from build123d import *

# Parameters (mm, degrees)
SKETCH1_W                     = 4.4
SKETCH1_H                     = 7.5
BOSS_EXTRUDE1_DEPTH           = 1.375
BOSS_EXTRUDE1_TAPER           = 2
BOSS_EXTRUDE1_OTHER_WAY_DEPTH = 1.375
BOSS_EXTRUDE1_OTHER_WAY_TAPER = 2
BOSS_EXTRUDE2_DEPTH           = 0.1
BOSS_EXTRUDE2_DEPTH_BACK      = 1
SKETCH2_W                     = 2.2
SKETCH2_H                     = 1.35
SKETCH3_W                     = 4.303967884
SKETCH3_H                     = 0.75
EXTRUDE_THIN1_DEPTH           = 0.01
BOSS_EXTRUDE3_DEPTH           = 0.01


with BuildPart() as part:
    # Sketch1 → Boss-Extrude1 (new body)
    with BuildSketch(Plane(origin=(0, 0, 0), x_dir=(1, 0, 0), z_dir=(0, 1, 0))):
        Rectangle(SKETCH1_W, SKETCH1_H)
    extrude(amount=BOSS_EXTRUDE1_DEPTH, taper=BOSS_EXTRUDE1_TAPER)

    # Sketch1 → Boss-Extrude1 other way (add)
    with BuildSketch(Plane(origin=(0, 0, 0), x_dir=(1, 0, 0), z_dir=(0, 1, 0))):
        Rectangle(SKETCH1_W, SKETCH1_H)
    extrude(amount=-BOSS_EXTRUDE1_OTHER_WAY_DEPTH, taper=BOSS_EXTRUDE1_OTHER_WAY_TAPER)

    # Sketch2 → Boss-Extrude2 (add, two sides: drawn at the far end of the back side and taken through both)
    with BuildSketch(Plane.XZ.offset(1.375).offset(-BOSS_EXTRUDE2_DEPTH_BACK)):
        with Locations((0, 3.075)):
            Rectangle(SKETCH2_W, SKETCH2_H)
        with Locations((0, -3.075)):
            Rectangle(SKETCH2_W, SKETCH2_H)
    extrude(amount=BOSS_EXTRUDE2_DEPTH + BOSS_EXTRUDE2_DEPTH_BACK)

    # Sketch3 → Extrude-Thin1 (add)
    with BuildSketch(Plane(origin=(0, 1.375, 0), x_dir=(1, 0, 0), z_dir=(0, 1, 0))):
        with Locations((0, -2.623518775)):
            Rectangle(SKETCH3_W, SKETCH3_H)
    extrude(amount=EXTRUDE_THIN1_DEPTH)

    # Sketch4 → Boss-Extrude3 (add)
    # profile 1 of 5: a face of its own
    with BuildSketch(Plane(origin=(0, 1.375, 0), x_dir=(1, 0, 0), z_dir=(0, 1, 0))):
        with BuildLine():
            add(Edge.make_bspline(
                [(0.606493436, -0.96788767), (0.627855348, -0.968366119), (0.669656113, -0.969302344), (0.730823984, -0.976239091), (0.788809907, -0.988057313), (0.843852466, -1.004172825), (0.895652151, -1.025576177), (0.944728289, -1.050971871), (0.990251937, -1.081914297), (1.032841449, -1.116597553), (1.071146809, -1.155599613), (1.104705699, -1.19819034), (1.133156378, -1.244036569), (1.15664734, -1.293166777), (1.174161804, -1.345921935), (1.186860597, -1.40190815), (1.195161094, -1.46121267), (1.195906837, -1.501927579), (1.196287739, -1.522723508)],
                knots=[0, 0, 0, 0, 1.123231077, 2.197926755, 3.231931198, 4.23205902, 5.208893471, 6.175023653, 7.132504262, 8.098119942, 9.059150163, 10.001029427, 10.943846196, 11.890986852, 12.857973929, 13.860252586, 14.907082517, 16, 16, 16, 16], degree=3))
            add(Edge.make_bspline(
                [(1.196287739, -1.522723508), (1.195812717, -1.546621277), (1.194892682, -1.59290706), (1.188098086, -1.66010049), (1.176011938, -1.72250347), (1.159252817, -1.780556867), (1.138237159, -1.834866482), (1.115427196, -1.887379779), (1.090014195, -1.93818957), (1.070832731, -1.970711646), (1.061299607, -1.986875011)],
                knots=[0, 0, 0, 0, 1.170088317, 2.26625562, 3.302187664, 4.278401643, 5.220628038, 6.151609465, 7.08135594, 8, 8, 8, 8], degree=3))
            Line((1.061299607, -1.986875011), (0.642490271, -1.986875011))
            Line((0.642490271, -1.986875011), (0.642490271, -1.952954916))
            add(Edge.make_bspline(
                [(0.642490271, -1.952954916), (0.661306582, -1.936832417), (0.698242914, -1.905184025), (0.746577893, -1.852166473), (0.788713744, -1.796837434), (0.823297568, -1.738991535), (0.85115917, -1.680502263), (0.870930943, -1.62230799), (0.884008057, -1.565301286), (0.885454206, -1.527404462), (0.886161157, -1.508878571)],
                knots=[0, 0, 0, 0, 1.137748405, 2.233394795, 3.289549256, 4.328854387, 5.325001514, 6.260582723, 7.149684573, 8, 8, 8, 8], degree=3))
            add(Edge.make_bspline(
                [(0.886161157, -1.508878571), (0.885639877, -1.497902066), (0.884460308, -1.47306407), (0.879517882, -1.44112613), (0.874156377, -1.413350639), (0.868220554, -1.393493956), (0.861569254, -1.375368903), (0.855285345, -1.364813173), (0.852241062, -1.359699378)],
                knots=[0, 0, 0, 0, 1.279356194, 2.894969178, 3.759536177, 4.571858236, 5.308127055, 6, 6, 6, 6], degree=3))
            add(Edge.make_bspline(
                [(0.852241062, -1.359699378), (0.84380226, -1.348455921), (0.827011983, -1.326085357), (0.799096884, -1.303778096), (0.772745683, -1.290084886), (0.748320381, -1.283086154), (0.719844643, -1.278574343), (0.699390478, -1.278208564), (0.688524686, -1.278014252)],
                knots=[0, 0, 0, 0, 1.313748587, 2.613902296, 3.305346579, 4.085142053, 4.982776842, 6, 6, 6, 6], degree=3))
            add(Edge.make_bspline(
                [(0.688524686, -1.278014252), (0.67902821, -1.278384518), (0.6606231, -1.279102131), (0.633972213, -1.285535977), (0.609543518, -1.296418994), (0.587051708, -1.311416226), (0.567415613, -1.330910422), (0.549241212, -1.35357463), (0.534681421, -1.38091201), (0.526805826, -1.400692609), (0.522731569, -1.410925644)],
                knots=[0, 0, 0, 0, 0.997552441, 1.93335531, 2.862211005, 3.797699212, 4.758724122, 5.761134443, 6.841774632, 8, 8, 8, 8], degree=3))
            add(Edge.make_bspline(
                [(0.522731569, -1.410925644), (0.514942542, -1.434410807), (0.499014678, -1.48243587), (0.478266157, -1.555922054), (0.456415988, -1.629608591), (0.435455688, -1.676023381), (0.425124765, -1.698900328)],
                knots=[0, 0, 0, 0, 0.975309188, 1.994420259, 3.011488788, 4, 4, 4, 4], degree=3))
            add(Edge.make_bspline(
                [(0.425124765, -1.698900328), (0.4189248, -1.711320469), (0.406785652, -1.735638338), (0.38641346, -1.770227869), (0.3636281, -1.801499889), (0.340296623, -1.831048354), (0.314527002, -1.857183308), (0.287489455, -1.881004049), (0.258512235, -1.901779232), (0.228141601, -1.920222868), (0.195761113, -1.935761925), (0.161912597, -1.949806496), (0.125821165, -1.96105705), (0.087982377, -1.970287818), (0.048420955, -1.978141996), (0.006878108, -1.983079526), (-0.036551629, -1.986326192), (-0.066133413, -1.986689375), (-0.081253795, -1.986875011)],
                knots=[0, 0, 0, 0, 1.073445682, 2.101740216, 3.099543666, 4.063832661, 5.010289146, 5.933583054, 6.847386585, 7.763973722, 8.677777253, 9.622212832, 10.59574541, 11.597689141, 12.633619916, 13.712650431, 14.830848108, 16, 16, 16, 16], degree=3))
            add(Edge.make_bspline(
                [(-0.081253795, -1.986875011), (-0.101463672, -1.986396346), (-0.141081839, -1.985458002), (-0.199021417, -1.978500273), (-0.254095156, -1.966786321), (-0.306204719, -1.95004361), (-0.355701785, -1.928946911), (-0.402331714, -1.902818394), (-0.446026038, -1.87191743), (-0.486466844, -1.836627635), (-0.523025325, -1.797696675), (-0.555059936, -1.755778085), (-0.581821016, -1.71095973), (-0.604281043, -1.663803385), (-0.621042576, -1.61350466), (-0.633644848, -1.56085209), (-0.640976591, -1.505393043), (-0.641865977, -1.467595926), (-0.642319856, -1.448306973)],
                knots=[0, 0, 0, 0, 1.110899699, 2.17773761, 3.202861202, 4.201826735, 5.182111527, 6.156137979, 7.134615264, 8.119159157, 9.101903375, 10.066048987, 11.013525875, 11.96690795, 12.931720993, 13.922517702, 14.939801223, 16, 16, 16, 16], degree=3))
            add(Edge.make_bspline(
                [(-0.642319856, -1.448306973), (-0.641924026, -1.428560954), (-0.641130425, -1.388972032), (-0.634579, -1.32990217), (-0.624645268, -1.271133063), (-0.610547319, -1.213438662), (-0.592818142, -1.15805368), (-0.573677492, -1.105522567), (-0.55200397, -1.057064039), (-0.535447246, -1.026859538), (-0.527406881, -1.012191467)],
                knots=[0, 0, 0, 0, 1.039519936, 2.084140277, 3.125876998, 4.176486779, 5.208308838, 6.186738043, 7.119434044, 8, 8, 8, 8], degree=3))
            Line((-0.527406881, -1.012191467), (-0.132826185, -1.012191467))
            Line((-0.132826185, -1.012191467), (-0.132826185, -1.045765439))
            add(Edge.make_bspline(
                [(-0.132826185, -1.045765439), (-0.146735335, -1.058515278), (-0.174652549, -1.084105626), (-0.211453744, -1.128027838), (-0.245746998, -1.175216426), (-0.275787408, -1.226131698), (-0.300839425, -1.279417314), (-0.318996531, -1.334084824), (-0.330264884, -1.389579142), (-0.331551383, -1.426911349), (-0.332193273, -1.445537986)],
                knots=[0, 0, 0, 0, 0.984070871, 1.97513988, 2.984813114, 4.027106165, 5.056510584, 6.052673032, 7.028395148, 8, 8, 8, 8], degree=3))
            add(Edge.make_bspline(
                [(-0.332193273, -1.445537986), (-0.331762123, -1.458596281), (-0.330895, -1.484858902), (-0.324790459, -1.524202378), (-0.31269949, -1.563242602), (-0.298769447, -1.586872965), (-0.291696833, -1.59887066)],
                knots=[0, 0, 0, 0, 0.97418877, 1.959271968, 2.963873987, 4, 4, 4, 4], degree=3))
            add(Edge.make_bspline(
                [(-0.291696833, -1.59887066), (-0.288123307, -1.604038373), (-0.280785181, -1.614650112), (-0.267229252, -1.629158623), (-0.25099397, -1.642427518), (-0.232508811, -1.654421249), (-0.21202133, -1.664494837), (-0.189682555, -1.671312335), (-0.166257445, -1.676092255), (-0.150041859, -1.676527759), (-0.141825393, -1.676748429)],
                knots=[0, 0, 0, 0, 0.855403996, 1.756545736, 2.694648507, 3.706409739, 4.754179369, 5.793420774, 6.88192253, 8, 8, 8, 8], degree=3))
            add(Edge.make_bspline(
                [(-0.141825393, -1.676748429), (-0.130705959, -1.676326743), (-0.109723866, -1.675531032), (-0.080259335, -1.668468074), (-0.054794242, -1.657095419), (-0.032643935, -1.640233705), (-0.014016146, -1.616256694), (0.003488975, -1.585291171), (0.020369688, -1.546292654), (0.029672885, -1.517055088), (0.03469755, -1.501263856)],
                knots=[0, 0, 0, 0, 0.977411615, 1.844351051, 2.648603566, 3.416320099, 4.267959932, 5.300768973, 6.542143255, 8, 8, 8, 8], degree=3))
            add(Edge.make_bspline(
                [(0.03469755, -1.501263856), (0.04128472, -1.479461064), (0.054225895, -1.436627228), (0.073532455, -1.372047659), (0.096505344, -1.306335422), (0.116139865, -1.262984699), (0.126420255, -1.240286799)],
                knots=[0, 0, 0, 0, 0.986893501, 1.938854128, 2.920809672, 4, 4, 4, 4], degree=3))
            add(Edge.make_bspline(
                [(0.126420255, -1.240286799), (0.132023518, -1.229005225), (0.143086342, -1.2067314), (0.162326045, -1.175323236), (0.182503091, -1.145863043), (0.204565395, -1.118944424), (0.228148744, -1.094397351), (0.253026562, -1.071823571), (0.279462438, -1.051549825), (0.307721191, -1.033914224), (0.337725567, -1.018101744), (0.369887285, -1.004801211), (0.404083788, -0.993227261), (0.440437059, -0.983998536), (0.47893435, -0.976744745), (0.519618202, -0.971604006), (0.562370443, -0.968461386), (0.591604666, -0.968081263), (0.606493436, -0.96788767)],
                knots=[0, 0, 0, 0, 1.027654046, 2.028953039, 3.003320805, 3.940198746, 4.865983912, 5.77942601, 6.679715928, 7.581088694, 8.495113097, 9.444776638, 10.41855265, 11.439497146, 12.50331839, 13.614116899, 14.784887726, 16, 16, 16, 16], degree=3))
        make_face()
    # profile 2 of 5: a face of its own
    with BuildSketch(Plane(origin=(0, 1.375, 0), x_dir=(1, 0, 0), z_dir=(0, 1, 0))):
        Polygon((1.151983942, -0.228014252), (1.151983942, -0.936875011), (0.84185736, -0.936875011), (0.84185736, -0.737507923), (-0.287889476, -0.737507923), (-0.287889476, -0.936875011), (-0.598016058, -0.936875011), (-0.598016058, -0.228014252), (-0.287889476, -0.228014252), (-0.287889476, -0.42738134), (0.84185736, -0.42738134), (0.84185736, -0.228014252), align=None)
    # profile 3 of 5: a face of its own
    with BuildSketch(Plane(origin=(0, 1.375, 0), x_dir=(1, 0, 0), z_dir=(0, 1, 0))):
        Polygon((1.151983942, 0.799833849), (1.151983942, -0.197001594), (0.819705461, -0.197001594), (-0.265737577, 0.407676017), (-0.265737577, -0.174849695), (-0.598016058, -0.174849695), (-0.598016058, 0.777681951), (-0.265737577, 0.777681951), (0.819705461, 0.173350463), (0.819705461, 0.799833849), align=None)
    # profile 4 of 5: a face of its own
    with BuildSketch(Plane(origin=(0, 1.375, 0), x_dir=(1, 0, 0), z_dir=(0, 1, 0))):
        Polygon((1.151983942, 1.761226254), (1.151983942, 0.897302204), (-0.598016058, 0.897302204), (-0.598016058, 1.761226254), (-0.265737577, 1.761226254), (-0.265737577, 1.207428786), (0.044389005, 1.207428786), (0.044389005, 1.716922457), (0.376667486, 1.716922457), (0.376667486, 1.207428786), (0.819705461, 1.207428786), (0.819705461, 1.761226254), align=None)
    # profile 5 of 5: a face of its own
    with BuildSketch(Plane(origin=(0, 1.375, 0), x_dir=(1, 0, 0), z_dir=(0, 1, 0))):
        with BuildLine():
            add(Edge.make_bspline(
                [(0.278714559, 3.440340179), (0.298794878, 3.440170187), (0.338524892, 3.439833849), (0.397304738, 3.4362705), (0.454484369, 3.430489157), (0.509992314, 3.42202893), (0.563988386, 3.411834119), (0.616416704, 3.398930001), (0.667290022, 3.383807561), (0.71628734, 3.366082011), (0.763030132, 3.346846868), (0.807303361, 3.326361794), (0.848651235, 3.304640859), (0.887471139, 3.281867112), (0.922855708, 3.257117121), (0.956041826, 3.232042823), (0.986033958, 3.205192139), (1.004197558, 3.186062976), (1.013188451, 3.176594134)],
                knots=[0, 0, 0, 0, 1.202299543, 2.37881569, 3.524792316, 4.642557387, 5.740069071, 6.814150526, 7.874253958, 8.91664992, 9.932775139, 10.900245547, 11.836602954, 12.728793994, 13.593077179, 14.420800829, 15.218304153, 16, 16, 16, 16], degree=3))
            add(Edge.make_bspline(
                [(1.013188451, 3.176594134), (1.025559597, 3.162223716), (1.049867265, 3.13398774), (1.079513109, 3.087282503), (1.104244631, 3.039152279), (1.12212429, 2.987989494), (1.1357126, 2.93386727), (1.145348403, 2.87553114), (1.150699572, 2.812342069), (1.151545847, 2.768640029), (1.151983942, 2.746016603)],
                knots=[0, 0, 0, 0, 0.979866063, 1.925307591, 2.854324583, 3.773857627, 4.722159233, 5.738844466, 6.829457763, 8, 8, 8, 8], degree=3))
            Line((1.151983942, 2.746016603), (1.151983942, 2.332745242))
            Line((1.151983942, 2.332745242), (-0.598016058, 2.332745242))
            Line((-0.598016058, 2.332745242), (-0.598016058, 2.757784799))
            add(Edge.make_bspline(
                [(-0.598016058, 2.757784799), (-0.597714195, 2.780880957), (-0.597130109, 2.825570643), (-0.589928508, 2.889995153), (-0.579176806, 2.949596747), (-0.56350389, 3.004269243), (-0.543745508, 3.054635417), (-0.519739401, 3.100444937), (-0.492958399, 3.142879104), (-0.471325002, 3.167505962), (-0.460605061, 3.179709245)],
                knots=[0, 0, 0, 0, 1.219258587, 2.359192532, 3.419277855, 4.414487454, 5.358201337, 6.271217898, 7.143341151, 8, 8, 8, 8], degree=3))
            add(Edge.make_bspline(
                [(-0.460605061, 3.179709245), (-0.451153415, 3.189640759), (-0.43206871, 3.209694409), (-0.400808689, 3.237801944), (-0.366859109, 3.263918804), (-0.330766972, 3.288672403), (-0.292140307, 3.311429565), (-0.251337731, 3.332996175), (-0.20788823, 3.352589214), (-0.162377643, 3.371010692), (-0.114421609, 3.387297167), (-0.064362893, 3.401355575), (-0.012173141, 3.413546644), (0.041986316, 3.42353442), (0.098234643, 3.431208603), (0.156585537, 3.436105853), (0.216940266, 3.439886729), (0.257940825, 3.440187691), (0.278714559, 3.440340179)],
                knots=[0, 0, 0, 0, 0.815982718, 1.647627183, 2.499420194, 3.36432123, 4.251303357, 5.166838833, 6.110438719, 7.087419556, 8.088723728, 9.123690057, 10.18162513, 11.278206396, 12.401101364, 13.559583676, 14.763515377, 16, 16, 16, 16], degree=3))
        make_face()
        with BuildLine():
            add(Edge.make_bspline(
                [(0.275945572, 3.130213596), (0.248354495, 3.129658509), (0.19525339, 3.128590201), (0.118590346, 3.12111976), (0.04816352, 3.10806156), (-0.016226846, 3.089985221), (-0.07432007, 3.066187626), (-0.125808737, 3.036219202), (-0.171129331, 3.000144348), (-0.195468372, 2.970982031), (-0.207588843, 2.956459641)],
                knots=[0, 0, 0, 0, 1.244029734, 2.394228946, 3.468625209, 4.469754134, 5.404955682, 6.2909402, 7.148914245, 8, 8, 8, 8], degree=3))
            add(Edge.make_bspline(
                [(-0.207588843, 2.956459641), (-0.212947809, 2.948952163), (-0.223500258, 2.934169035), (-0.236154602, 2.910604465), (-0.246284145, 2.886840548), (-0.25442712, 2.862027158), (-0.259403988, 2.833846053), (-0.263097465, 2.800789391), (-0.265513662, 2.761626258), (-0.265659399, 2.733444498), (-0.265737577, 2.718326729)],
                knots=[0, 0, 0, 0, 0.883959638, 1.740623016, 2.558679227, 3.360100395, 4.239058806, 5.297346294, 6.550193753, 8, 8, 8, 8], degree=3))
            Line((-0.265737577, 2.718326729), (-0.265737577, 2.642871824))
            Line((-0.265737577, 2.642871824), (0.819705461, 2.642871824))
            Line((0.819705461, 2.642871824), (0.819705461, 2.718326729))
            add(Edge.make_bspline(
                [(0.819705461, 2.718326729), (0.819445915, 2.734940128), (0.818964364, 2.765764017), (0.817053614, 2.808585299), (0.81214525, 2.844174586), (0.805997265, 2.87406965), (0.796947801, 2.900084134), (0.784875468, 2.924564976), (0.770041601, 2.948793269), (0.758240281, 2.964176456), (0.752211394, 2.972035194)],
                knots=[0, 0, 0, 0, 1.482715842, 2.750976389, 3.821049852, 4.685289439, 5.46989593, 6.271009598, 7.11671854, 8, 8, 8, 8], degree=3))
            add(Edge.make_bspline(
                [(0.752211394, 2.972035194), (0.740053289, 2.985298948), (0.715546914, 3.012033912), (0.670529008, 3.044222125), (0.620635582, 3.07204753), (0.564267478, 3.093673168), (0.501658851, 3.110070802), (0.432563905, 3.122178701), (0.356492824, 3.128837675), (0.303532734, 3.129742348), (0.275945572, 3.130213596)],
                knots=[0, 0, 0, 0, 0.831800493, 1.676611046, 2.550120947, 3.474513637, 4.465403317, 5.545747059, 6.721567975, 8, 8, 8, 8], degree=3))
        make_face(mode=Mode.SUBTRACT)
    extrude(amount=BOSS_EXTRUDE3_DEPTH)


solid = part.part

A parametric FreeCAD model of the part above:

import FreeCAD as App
import Part
import Sketcher

V = App.Vector

doc = App.newDocument("Part")
body = doc.addObject("PartDesign::Body", "Body")

sketch1 = body.newObject("Sketcher::SketchObject", "Sketch")
sketch1.AttachmentSupport = (doc.getObject("XZ_Plane"), [""])
sketch1.MapMode = "FlatFace"
sketch1.addGeometry(Part.LineSegment(V(-2.2, -3.8, 0), V(-2.2, 3.8, 0)), False)
sketch1.addGeometry(Part.LineSegment(V(-2.2, 3.8, 0), V(2.2, 3.8, 0)), False)
sketch1.addGeometry(Part.LineSegment(V(2.2, 3.8, 0), V(2.2, -3.8, 0)), False)
sketch1.addGeometry(Part.LineSegment(V(2.2, -3.8, 0), V(-2.2, -3.8, 0)), False)
sketch1.addConstraint(Sketcher.Constraint("Coincident", 0, 2, 1, 1))
sketch1.addConstraint(Sketcher.Constraint("Coincident", 1, 2, 2, 1))
sketch1.addConstraint(Sketcher.Constraint("Coincident", 2, 2, 3, 1))
sketch1.addConstraint(Sketcher.Constraint("Coincident", 3, 2, 0, 1))
sketch1.addConstraint(Sketcher.Constraint("Vertical", 0))
sketch1.addConstraint(Sketcher.Constraint("Horizontal", 1))
sketch1.addConstraint(Sketcher.Constraint("Vertical", 2))
sketch1.addConstraint(Sketcher.Constraint("Horizontal", 3))
sketch1.addConstraint(Sketcher.Constraint("Symmetric", 0, 2, 2, 2, -1, 1))
sketch1.addConstraint(Sketcher.Constraint("DistanceX", 1, 1, 1, 2, 4.4))
sketch1.addConstraint(Sketcher.Constraint("DistanceY", 0, 1, 0, 2, 7.5))
pad1 = body.newObject("PartDesign::Pad", "Pad")
pad1.Profile = sketch1
pad1.Length = 1.375
pad1.Reversed = True
pad1.TaperAngle = -2

sketch2 = body.newObject("Sketcher::SketchObject", "Sketch001")
sketch2.AttachmentSupport = (doc.getObject("XZ_Plane"), [""])
sketch2.MapMode = "FlatFace"
sketch2.addGeometry(Part.LineSegment(V(-2.2, -3.8, 0), V(-2.2, 3.8, 0)), False)
sketch2.addGeometry(Part.LineSegment(V(-2.2, 3.8, 0), V(2.2, 3.8, 0)), False)
sketch2.addGeometry(Part.LineSegment(V(2.2, 3.8, 0), V(2.2, -3.8, 0)), False)
sketch2.addGeometry(Part.LineSegment(V(2.2, -3.8, 0), V(-2.2, -3.8, 0)), False)
sketch2.addConstraint(Sketcher.Constraint("Coincident", 0, 2, 1, 1))
sketch2.addConstraint(Sketcher.Constraint("Coincident", 1, 2, 2, 1))
sketch2.addConstraint(Sketcher.Constraint("Coincident", 2, 2, 3, 1))
sketch2.addConstraint(Sketcher.Constraint("Coincident", 3, 2, 0, 1))
sketch2.addConstraint(Sketcher.Constraint("Vertical", 0))
sketch2.addConstraint(Sketcher.Constraint("Horizontal", 1))
sketch2.addConstraint(Sketcher.Constraint("Vertical", 2))
sketch2.addConstraint(Sketcher.Constraint("Horizontal", 3))
sketch2.addConstraint(Sketcher.Constraint("Symmetric", 0, 2, 2, 2, -1, 1))
sketch2.addConstraint(Sketcher.Constraint("DistanceX", 1, 1, 1, 2, 4.4))
sketch2.addConstraint(Sketcher.Constraint("DistanceY", 0, 1, 0, 2, 7.5))
pad2 = body.newObject("PartDesign::Pad", "Pad001")
pad2.Profile = sketch2
pad2.Length = 1.375
pad2.TaperAngle = -2

sketch3 = body.newObject("Sketcher::SketchObject", "Sketch002")
sketch3.AttachmentSupport = (doc.getObject("XZ_Plane"), [""])
sketch3.MapMode = "FlatFace"
sketch3.AttachmentOffset = App.Placement(V(0, 0, 1.375), App.Rotation())
sketch3.addGeometry(Part.LineSegment(V(-1.1, 3.8, 0), V(-1.1, 2.4, 0)), False)
sketch3.addGeometry(Part.LineSegment(V(-1.1, 2.4, 0), V(1.1, 2.4, 0)), False)
sketch3.addGeometry(Part.LineSegment(V(1.1, 2.4, 0), V(1.1, 3.8, 0)), False)
sketch3.addGeometry(Part.LineSegment(V(1.1, 3.8, 0), V(-1.1, 3.8, 0)), False)
sketch3.addGeometry(Part.LineSegment(V(-1.1, -2.4, 0), V(-1.1, -3.8, 0)), False)
sketch3.addGeometry(Part.LineSegment(V(-1.1, -3.8, 0), V(1.1, -3.8, 0)), False)
sketch3.addGeometry(Part.LineSegment(V(1.1, -3.8, 0), V(1.1, -2.4, 0)), False)
sketch3.addGeometry(Part.LineSegment(V(1.1, -2.4, 0), V(-1.1, -2.4, 0)), False)
sketch3.addConstraint(Sketcher.Constraint("Coincident", 0, 2, 1, 1))
sketch3.addConstraint(Sketcher.Constraint("Coincident", 1, 2, 2, 1))
sketch3.addConstraint(Sketcher.Constraint("Coincident", 2, 2, 3, 1))
sketch3.addConstraint(Sketcher.Constraint("Coincident", 3, 2, 0, 1))
sketch3.addConstraint(Sketcher.Constraint("Coincident", 4, 2, 5, 1))
sketch3.addConstraint(Sketcher.Constraint("Coincident", 5, 2, 6, 1))
sketch3.addConstraint(Sketcher.Constraint("Coincident", 6, 2, 7, 1))
sketch3.addConstraint(Sketcher.Constraint("Coincident", 7, 2, 4, 1))
sketch3.addConstraint(Sketcher.Constraint("Vertical", 0))
sketch3.addConstraint(Sketcher.Constraint("Horizontal", 1))
sketch3.addConstraint(Sketcher.Constraint("Vertical", 2))
sketch3.addConstraint(Sketcher.Constraint("Horizontal", 3))
sketch3.addConstraint(Sketcher.Constraint("Vertical", 4))
sketch3.addConstraint(Sketcher.Constraint("Horizontal", 5))
sketch3.addConstraint(Sketcher.Constraint("Vertical", 6))
sketch3.addConstraint(Sketcher.Constraint("Horizontal", 7))
sketch3.addConstraint(Sketcher.Constraint("Symmetric", 2, 2, 4, 2, -1, 1))
sketch3.addConstraint(Sketcher.Constraint("Symmetric", 0, 2, 6, 2, -1, 1))
sketch3.addConstraint(Sketcher.Constraint("Vertical", 3, 2, 4, 2))
sketch3.addConstraint(Sketcher.Constraint("DistanceX", 1, 1, 1, 2, 2.2))
sketch3.addConstraint(Sketcher.Constraint("DistanceY", 0, 2, 0, 1, 1.35))
sketch3.addConstraint(Sketcher.Constraint("DistanceY", -1, 1, 0, 2, 2.4))
pad3 = body.newObject("PartDesign::Pad", "Pad002")
pad3.Profile = sketch3
pad3.Type = "TwoLengths"
pad3.Length = 0.1
pad3.Length2 = 1

sketch4 = body.newObject("Sketcher::SketchObject", "Sketch003")
sketch4.AttachmentSupport = (doc.getObject("XZ_Plane"), [""])
sketch4.MapMode = "FlatFace"
sketch4.AttachmentOffset = App.Placement(V(0, 0, -1.375), App.Rotation())
sketch4.addGeometry(Part.LineSegment(V(-2.2, 2.2, 0), V(-2.2, 3, 0)), False)
sketch4.addGeometry(Part.LineSegment(V(-2.2, 3, 0), V(2.2, 3, 0)), False)
sketch4.addGeometry(Part.LineSegment(V(2.2, 3, 0), V(2.2, 2.2, 0)), False)
sketch4.addGeometry(Part.LineSegment(V(2.2, 2.2, 0), V(-2.2, 2.2, 0)), False)
sketch4.addConstraint(Sketcher.Constraint("Coincident", 0, 2, 1, 1))
sketch4.addConstraint(Sketcher.Constraint("Coincident", 1, 2, 2, 1))
sketch4.addConstraint(Sketcher.Constraint("Coincident", 2, 2, 3, 1))
sketch4.addConstraint(Sketcher.Constraint("Coincident", 3, 2, 0, 1))
sketch4.addConstraint(Sketcher.Constraint("Vertical", 0))
sketch4.addConstraint(Sketcher.Constraint("Horizontal", 1))
sketch4.addConstraint(Sketcher.Constraint("Vertical", 2))
sketch4.addConstraint(Sketcher.Constraint("Horizontal", 3))
sketch4.addConstraint(Sketcher.Constraint("DistanceY", 0, 1, 0, 2, 0.75))
sketch4.addConstraint(Sketcher.Constraint("DistanceX", 1, 1, 1, 2, 4.303968))
sketch4.addConstraint(Sketcher.Constraint("DistanceY", -1, 1, 0, 2, 2.998519))
sketch4.addConstraint(Sketcher.Constraint("DistanceX", 0, 2, -1, 1, 2.151984))
pad4 = body.newObject("PartDesign::Pad", "Pad003")
pad4.Profile = sketch4
pad4.Length = 0.01
pad4.Reversed = True

sketch5 = body.newObject("Sketcher::SketchObject", "Sketch004")
sketch5.AttachmentSupport = (doc.getObject("XZ_Plane"), [""])
sketch5.MapMode = "FlatFace"
sketch5.AttachmentOffset = App.Placement(V(0, 0, -1.375), App.Rotation())
sketch5.addGeometry(Part.BSplineCurve([V(0.606493, 0.967888, 0), V(0.627855, 0.968366, 0), V(0.669656, 0.969302, 0), V(0.730824, 0.976239, 0), V(0.78881, 0.988057, 0), V(0.843852, 1.004173, 0), V(0.895652, 1.025576, 0), V(0.944728, 1.050972, 0), V(0.990252, 1.081914, 0), V(1.032841, 1.116598, 0), V(1.071147, 1.1556, 0), V(1.104706, 1.19819, 0), V(1.133156, 1.244037, 0), V(1.156647, 1.293167, 0), V(1.174162, 1.345922, 0), V(1.186861, 1.401908, 0), V(1.195161, 1.461213, 0), V(1.195907, 1.501928, 0), V(1.196288, 1.522724, 0)], [4, 1, 1, 1, 1, 1, 1, 1, 1, 1, 1, 1, 1, 1, 1, 1, 4], [0, 1.123231077, 2.197926755, 3.231931198, 4.23205902, 5.208893471, 6.175023653, 7.132504262, 8.098119942, 9.059150163, 10.001029427, 10.943846196, 11.890986852, 12.857973929, 13.860252586, 14.907082517, 16], False, 3, [1, 1, 1, 1, 1, 1, 1, 1, 1, 1, 1, 1, 1, 1, 1, 1, 1, 1, 1], False), False)
sketch5.addGeometry(Part.BSplineCurve([V(0.12642, 1.240287, 0), V(0.132024, 1.229005, 0), V(0.143086, 1.206731, 0), V(0.162326, 1.175323, 0), V(0.182503, 1.145863, 0), V(0.204565, 1.118944, 0), V(0.228149, 1.094397, 0), V(0.253027, 1.071824, 0), V(0.279462, 1.05155, 0), V(0.307721, 1.033914, 0), V(0.337726, 1.018102, 0), V(0.369887, 1.004801, 0), V(0.404084, 0.993227, 0), V(0.440437, 0.983999, 0), V(0.478934, 0.976745, 0), V(0.519618, 0.971604, 0), V(0.56237, 0.968461, 0), V(0.591605, 0.968081, 0), V(0.606493, 0.967888, 0)], [4, 1, 1, 1, 1, 1, 1, 1, 1, 1, 1, 1, 1, 1, 1, 1, 4], [0, 1.027654046, 2.028953039, 3.003320805, 3.940198746, 4.865983912, 5.77942601, 6.679715928, 7.581088694, 8.495113097, 9.444776638, 10.41855265, 11.439497146, 12.50331839, 13.614116899, 14.784887726, 16], False, 3, [1, 1, 1, 1, 1, 1, 1, 1, 1, 1, 1, 1, 1, 1, 1, 1, 1, 1, 1], False), False)
sketch5.addGeometry(Part.BSplineCurve([V(0.034698, 1.501264, 0), V(0.041285, 1.479461, 0), V(0.054226, 1.436627, 0), V(0.073532, 1.372048, 0), V(0.096505, 1.306335, 0), V(0.11614, 1.262985, 0), V(0.12642, 1.240287, 0)], [4, 1, 1, 1, 4], [0, 0.986893501, 1.938854128, 2.920809672, 4], False, 3, [1, 1, 1, 1, 1, 1, 1], False), False)
sketch5.addGeometry(Part.BSplineCurve([V(-0.141825, 1.676748, 0), V(-0.130706, 1.676327, 0), V(-0.109724, 1.675531, 0), V(-0.080259, 1.668468, 0), V(-0.054794, 1.657095, 0), V(-0.032644, 1.640234, 0), V(-0.014016, 1.616257, 0), V(0.003489, 1.585291, 0), V(0.02037, 1.546293, 0), V(0.029673, 1.517055, 0), V(0.034698, 1.501264, 0)], [4, 1, 1, 1, 1, 1, 1, 1, 4], [0, 0.977411615, 1.844351051, 2.648603566, 3.416320099, 4.267959932, 5.300768973, 6.542143255, 8], False, 3, [1, 1, 1, 1, 1, 1, 1, 1, 1, 1, 1], False), False)
sketch5.addGeometry(Part.BSplineCurve([V(-0.291697, 1.598871, 0), V(-0.288123, 1.604038, 0), V(-0.280785, 1.61465, 0), V(-0.267229, 1.629159, 0), V(-0.250994, 1.642428, 0), V(-0.232509, 1.654421, 0), V(-0.212021, 1.664495, 0), V(-0.189683, 1.671312, 0), V(-0.166257, 1.676092, 0), V(-0.150042, 1.676528, 0), V(-0.141825, 1.676748, 0)], [4, 1, 1, 1, 1, 1, 1, 1, 4], [0, 0.855403996, 1.756545736, 2.694648507, 3.706409739, 4.754179369, 5.793420774, 6.88192253, 8], False, 3, [1, 1, 1, 1, 1, 1, 1, 1, 1, 1, 1], False), False)
sketch5.addGeometry(Part.BSplineCurve([V(-0.332193, 1.445538, 0), V(-0.331762, 1.458596, 0), V(-0.330895, 1.484859, 0), V(-0.32479, 1.524202, 0), V(-0.312699, 1.563243, 0), V(-0.298769, 1.586873, 0), V(-0.291697, 1.598871, 0)], [4, 1, 1, 1, 4], [0, 0.97418877, 1.959271968, 2.963873987, 4], False, 3, [1, 1, 1, 1, 1, 1, 1], False), False)
sketch5.addGeometry(Part.BSplineCurve([V(-0.132826, 1.045765, 0), V(-0.146735, 1.058515, 0), V(-0.174653, 1.084106, 0), V(-0.211454, 1.128028, 0), V(-0.245747, 1.175216, 0), V(-0.275787, 1.226132, 0), V(-0.300839, 1.279417, 0), V(-0.318997, 1.334085, 0), V(-0.330265, 1.389579, 0), V(-0.331551, 1.426911, 0), V(-0.332193, 1.445538, 0)], [4, 1, 1, 1, 1, 1, 1, 1, 4], [0, 0.984070871, 1.97513988, 2.984813114, 4.027106165, 5.056510584, 6.052673032, 7.028395148, 8], False, 3, [1, 1, 1, 1, 1, 1, 1, 1, 1, 1, 1], False), False)
sketch5.addGeometry(Part.LineSegment(V(-0.132826, 1.045765, 0), V(-0.132826, 1.012191, 0)), False)
sketch5.addGeometry(Part.LineSegment(V(-0.132826, 1.012191, 0), V(-0.527407, 1.012191, 0)), False)
sketch5.addGeometry(Part.BSplineCurve([V(-0.64232, 1.448307, 0), V(-0.641924, 1.428561, 0), V(-0.64113, 1.388972, 0), V(-0.634579, 1.329902, 0), V(-0.624645, 1.271133, 0), V(-0.610547, 1.213439, 0), V(-0.592818, 1.158054, 0), V(-0.573677, 1.105523, 0), V(-0.552004, 1.057064, 0), V(-0.535447, 1.02686, 0), V(-0.527407, 1.012191, 0)], [4, 1, 1, 1, 1, 1, 1, 1, 4], [0, 1.039519936, 2.084140277, 3.125876998, 4.176486779, 5.208308838, 6.186738043, 7.119434044, 8], False, 3, [1, 1, 1, 1, 1, 1, 1, 1, 1, 1, 1], False), False)
sketch5.addGeometry(Part.BSplineCurve([V(-0.081254, 1.986875, 0), V(-0.101464, 1.986396, 0), V(-0.141082, 1.985458, 0), V(-0.199021, 1.9785, 0), V(-0.254095, 1.966786, 0), V(-0.306205, 1.950044, 0), V(-0.355702, 1.928947, 0), V(-0.402332, 1.902818, 0), V(-0.446026, 1.871917, 0), V(-0.486467, 1.836628, 0), V(-0.523025, 1.797697, 0), V(-0.55506, 1.755778, 0), V(-0.581821, 1.71096, 0), V(-0.604281, 1.663803, 0), V(-0.621043, 1.613505, 0), V(-0.633645, 1.560852, 0), V(-0.640977, 1.505393, 0), V(-0.641866, 1.467596, 0), V(-0.64232, 1.448307, 0)], [4, 1, 1, 1, 1, 1, 1, 1, 1, 1, 1, 1, 1, 1, 1, 1, 4], [0, 1.110899699, 2.17773761, 3.202861202, 4.201826735, 5.182111527, 6.156137979, 7.134615264, 8.119159157, 9.101903375, 10.066048987, 11.013525875, 11.96690795, 12.931720993, 13.922517702, 14.939801223, 16], False, 3, [1, 1, 1, 1, 1, 1, 1, 1, 1, 1, 1, 1, 1, 1, 1, 1, 1, 1, 1], False), False)
sketch5.addGeometry(Part.BSplineCurve([V(0.425125, 1.6989, 0), V(0.418925, 1.71132, 0), V(0.406786, 1.735638, 0), V(0.386413, 1.770228, 0), V(0.363628, 1.8015, 0), V(0.340297, 1.831048, 0), V(0.314527, 1.857183, 0), V(0.287489, 1.881004, 0), V(0.258512, 1.901779, 0), V(0.228142, 1.920223, 0), V(0.195761, 1.935762, 0), V(0.161913, 1.949806, 0), V(0.125821, 1.961057, 0), V(0.087982, 1.970288, 0), V(0.048421, 1.978142, 0), V(0.006878, 1.98308, 0), V(-0.036552, 1.986326, 0), V(-0.066133, 1.986689, 0), V(-0.081254, 1.986875, 0)], [4, 1, 1, 1, 1, 1, 1, 1, 1, 1, 1, 1, 1, 1, 1, 1, 4], [0, 1.073445682, 2.101740216, 3.099543666, 4.063832661, 5.010289146, 5.933583054, 6.847386585, 7.763973722, 8.677777253, 9.622212832, 10.59574541, 11.597689141, 12.633619916, 13.712650431, 14.830848108, 16], False, 3, [1, 1, 1, 1, 1, 1, 1, 1, 1, 1, 1, 1, 1, 1, 1, 1, 1, 1, 1], False), False)
sketch5.addGeometry(Part.BSplineCurve([V(0.522732, 1.410926, 0), V(0.514943, 1.434411, 0), V(0.499015, 1.482436, 0), V(0.478266, 1.555922, 0), V(0.456416, 1.629609, 0), V(0.435456, 1.676023, 0), V(0.425125, 1.6989, 0)], [4, 1, 1, 1, 4], [0, 0.975309188, 1.994420259, 3.011488788, 4], False, 3, [1, 1, 1, 1, 1, 1, 1], False), False)
sketch5.addGeometry(Part.BSplineCurve([V(0.688525, 1.278014, 0), V(0.679028, 1.278385, 0), V(0.660623, 1.279102, 0), V(0.633972, 1.285536, 0), V(0.609544, 1.296419, 0), V(0.587052, 1.311416, 0), V(0.567416, 1.33091, 0), V(0.549241, 1.353575, 0), V(0.534681, 1.380912, 0), V(0.526806, 1.400693, 0), V(0.522732, 1.410926, 0)], [4, 1, 1, 1, 1, 1, 1, 1, 4], [0, 0.997552441, 1.93335531, 2.862211005, 3.797699212, 4.758724122, 5.761134443, 6.841774632, 8], False, 3, [1, 1, 1, 1, 1, 1, 1, 1, 1, 1, 1], False), False)
sketch5.addGeometry(Part.BSplineCurve([V(0.852241, 1.359699, 0), V(0.843802, 1.348456, 0), V(0.827012, 1.326085, 0), V(0.799097, 1.303778, 0), V(0.772746, 1.290085, 0), V(0.74832, 1.283086, 0), V(0.719845, 1.278574, 0), V(0.69939, 1.278209, 0), V(0.688525, 1.278014, 0)], [4, 1, 1, 1, 1, 1, 4], [0, 1.313748587, 2.613902296, 3.305346579, 4.085142053, 4.982776842, 6], False, 3, [1, 1, 1, 1, 1, 1, 1, 1, 1], False), False)
sketch5.addGeometry(Part.BSplineCurve([V(0.886161, 1.508879, 0), V(0.88564, 1.497902, 0), V(0.88446, 1.473064, 0), V(0.879518, 1.441126, 0), V(0.874156, 1.413351, 0), V(0.868221, 1.393494, 0), V(0.861569, 1.375369, 0), V(0.855285, 1.364813, 0), V(0.852241, 1.359699, 0)], [4, 1, 1, 1, 1, 1, 4], [0, 1.279356194, 2.894969178, 3.759536177, 4.571858236, 5.308127055, 6], False, 3, [1, 1, 1, 1, 1, 1, 1, 1, 1], False), False)
sketch5.addGeometry(Part.BSplineCurve([V(0.64249, 1.952955, 0), V(0.661307, 1.936832, 0), V(0.698243, 1.905184, 0), V(0.746578, 1.852166, 0), V(0.788714, 1.796837, 0), V(0.823298, 1.738992, 0), V(0.851159, 1.680502, 0), V(0.870931, 1.622308, 0), V(0.884008, 1.565301, 0), V(0.885454, 1.527404, 0), V(0.886161, 1.508879, 0)], [4, 1, 1, 1, 1, 1, 1, 1, 4], [0, 1.137748405, 2.233394795, 3.289549256, 4.328854387, 5.325001514, 6.260582723, 7.149684573, 8], False, 3, [1, 1, 1, 1, 1, 1, 1, 1, 1, 1, 1], False), False)
sketch5.addGeometry(Part.LineSegment(V(0.64249, 1.952955, 0), V(0.64249, 1.986875, 0)), False)
sketch5.addGeometry(Part.LineSegment(V(0.64249, 1.986875, 0), V(1.0613, 1.986875, 0)), False)
sketch5.addGeometry(Part.BSplineCurve([V(1.196288, 1.522724, 0), V(1.195813, 1.546621, 0), V(1.194893, 1.592907, 0), V(1.188098, 1.6601, 0), V(1.176012, 1.722503, 0), V(1.159253, 1.780557, 0), V(1.138237, 1.834866, 0), V(1.115427, 1.88738, 0), V(1.090014, 1.93819, 0), V(1.070833, 1.970712, 0), V(1.0613, 1.986875, 0)], [4, 1, 1, 1, 1, 1, 1, 1, 4], [0, 1.170088317, 2.26625562, 3.302187664, 4.278401643, 5.220628038, 6.151609465, 7.08135594, 8], False, 3, [1, 1, 1, 1, 1, 1, 1, 1, 1, 1, 1], False), False)
sketch5.addGeometry(Part.LineSegment(V(1.151984, 0.936875, 0), V(1.151984, 0.228014, 0)), False)
sketch5.addGeometry(Part.LineSegment(V(1.151984, 0.228014, 0), V(0.841857, 0.228014, 0)), False)
sketch5.addGeometry(Part.LineSegment(V(0.841857, 0.228014, 0), V(0.841857, 0.427381, 0)), False)
sketch5.addGeometry(Part.LineSegment(V(0.841857, 0.427381, 0), V(-0.287889, 0.427381, 0)), False)
sketch5.addGeometry(Part.LineSegment(V(-0.287889, 0.427381, 0), V(-0.287889, 0.228014, 0)), False)
sketch5.addGeometry(Part.LineSegment(V(-0.287889, 0.228014, 0), V(-0.598016, 0.228014, 0)), False)
sketch5.addGeometry(Part.LineSegment(V(-0.598016, 0.228014, 0), V(-0.598016, 0.936875, 0)), False)
sketch5.addGeometry(Part.LineSegment(V(-0.598016, 0.936875, 0), V(-0.287889, 0.936875, 0)), False)
sketch5.addGeometry(Part.LineSegment(V(-0.287889, 0.936875, 0), V(-0.287889, 0.737508, 0)), False)
sketch5.addGeometry(Part.LineSegment(V(-0.287889, 0.737508, 0), V(0.841857, 0.737508, 0)), False)
sketch5.addGeometry(Part.LineSegment(V(0.841857, 0.737508, 0), V(0.841857, 0.936875, 0)), False)
sketch5.addGeometry(Part.LineSegment(V(0.841857, 0.936875, 0), V(1.151984, 0.936875, 0)), False)
sketch5.addGeometry(Part.LineSegment(V(1.151984, 0.197002, 0), V(1.151984, -0.799834, 0)), False)
sketch5.addGeometry(Part.LineSegment(V(1.151984, -0.799834, 0), V(0.819705, -0.799834, 0)), False)
sketch5.addGeometry(Part.LineSegment(V(0.819705, -0.799834, 0), V(0.819705, -0.17335, 0)), False)
sketch5.addGeometry(Part.LineSegment(V(0.819705, -0.17335, 0), V(-0.265738, -0.777682, 0)), False)
sketch5.addGeometry(Part.LineSegment(V(-0.265738, -0.777682, 0), V(-0.598016, -0.777682, 0)), False)
sketch5.addGeometry(Part.LineSegment(V(-0.598016, -0.777682, 0), V(-0.598016, 0.17485, 0)), False)
sketch5.addGeometry(Part.LineSegment(V(-0.598016, 0.17485, 0), V(-0.265738, 0.17485, 0)), False)
sketch5.addGeometry(Part.LineSegment(V(-0.265738, 0.17485, 0), V(-0.265738, -0.407676, 0)), False)
sketch5.addGeometry(Part.LineSegment(V(-0.265738, -0.407676, 0), V(0.819705, 0.197002, 0)), False)
sketch5.addGeometry(Part.LineSegment(V(0.819705, 0.197002, 0), V(1.151984, 0.197002, 0)), False)
sketch5.addGeometry(Part.LineSegment(V(1.151984, -0.897302, 0), V(1.151984, -1.761226, 0)), False)
sketch5.addGeometry(Part.LineSegment(V(1.151984, -1.761226, 0), V(0.819705, -1.761226, 0)), False)
sketch5.addGeometry(Part.LineSegment(V(0.819705, -1.761226, 0), V(0.819705, -1.207429, 0)), False)
sketch5.addGeometry(Part.LineSegment(V(0.819705, -1.207429, 0), V(0.376667, -1.207429, 0)), False)
sketch5.addGeometry(Part.LineSegment(V(0.376667, -1.207429, 0), V(0.376667, -1.716922, 0)), False)
sketch5.addGeometry(Part.LineSegment(V(0.376667, -1.716922, 0), V(0.044389, -1.716922, 0)), False)
sketch5.addGeometry(Part.LineSegment(V(0.044389, -1.716922, 0), V(0.044389, -1.207429, 0)), False)
sketch5.addGeometry(Part.LineSegment(V(0.044389, -1.207429, 0), V(-0.265738, -1.207429, 0)), False)
sketch5.addGeometry(Part.LineSegment(V(-0.265738, -1.207429, 0), V(-0.265738, -1.761226, 0)), False)
sketch5.addGeometry(Part.LineSegment(V(-0.265738, -1.761226, 0), V(-0.598016, -1.761226, 0)), False)
sketch5.addGeometry(Part.LineSegment(V(-0.598016, -1.761226, 0), V(-0.598016, -0.897302, 0)), False)
sketch5.addGeometry(Part.LineSegment(V(-0.598016, -0.897302, 0), V(1.151984, -0.897302, 0)), False)
sketch5.addGeometry(Part.BSplineCurve([V(0.278715, -3.44034, 0), V(0.298795, -3.44017, 0), V(0.338525, -3.439834, 0), V(0.397305, -3.436271, 0), V(0.454484, -3.430489, 0), V(0.509992, -3.422029, 0), V(0.563988, -3.411834, 0), V(0.616417, -3.39893, 0), V(0.66729, -3.383808, 0), V(0.716287, -3.366082, 0), V(0.76303, -3.346847, 0), V(0.807303, -3.326362, 0), V(0.848651, -3.304641, 0), V(0.887471, -3.281867, 0), V(0.922856, -3.257117, 0), V(0.956042, -3.232043, 0), V(0.986034, -3.205192, 0), V(1.004198, -3.186063, 0), V(1.013188, -3.176594, 0)], [4, 1, 1, 1, 1, 1, 1, 1, 1, 1, 1, 1, 1, 1, 1, 1, 4], [0, 1.202299543, 2.37881569, 3.524792316, 4.642557387, 5.740069071, 6.814150526, 7.874253958, 8.91664992, 9.932775139, 10.900245547, 11.836602954, 12.728793994, 13.593077179, 14.420800829, 15.218304153, 16], False, 3, [1, 1, 1, 1, 1, 1, 1, 1, 1, 1, 1, 1, 1, 1, 1, 1, 1, 1, 1], False), False)
sketch5.addGeometry(Part.BSplineCurve([V(-0.460605, -3.179709, 0), V(-0.451153, -3.189641, 0), V(-0.432069, -3.209694, 0), V(-0.400809, -3.237802, 0), V(-0.366859, -3.263919, 0), V(-0.330767, -3.288672, 0), V(-0.29214, -3.31143, 0), V(-0.251338, -3.332996, 0), V(-0.207888, -3.352589, 0), V(-0.162378, -3.371011, 0), V(-0.114422, -3.387297, 0), V(-0.064363, -3.401356, 0), V(-0.012173, -3.413547, 0), V(0.041986, -3.423534, 0), V(0.098235, -3.431209, 0), V(0.156586, -3.436106, 0), V(0.21694, -3.439887, 0), V(0.257941, -3.440188, 0), V(0.278715, -3.44034, 0)], [4, 1, 1, 1, 1, 1, 1, 1, 1, 1, 1, 1, 1, 1, 1, 1, 4], [0, 0.815982718, 1.647627183, 2.499420194, 3.36432123, 4.251303357, 5.166838833, 6.110438719, 7.087419556, 8.088723728, 9.123690057, 10.18162513, 11.278206396, 12.401101364, 13.559583676, 14.763515377, 16], False, 3, [1, 1, 1, 1, 1, 1, 1, 1, 1, 1, 1, 1, 1, 1, 1, 1, 1, 1, 1], False), False)
sketch5.addGeometry(Part.BSplineCurve([V(-0.598016, -2.757785, 0), V(-0.597714, -2.780881, 0), V(-0.59713, -2.825571, 0), V(-0.589929, -2.889995, 0), V(-0.579177, -2.949597, 0), V(-0.563504, -3.004269, 0), V(-0.543746, -3.054635, 0), V(-0.519739, -3.100445, 0), V(-0.492958, -3.142879, 0), V(-0.471325, -3.167506, 0), V(-0.460605, -3.179709, 0)], [4, 1, 1, 1, 1, 1, 1, 1, 4], [0, 1.219258587, 2.359192532, 3.419277855, 4.414487454, 5.358201337, 6.271217898, 7.143341151, 8], False, 3, [1, 1, 1, 1, 1, 1, 1, 1, 1, 1, 1], False), False)
sketch5.addGeometry(Part.LineSegment(V(-0.598016, -2.757785, 0), V(-0.598016, -2.332745, 0)), False)
sketch5.addGeometry(Part.LineSegment(V(-0.598016, -2.332745, 0), V(1.151984, -2.332745, 0)), False)
sketch5.addGeometry(Part.LineSegment(V(1.151984, -2.332745, 0), V(1.151984, -2.746017, 0)), False)
sketch5.addGeometry(Part.BSplineCurve([V(1.013188, -3.176594, 0), V(1.02556, -3.162224, 0), V(1.049867, -3.133988, 0), V(1.079513, -3.087283, 0), V(1.104245, -3.039152, 0), V(1.122124, -2.987989, 0), V(1.135713, -2.933867, 0), V(1.145348, -2.875531, 0), V(1.1507, -2.812342, 0), V(1.151546, -2.76864, 0), V(1.151984, -2.746017, 0)], [4, 1, 1, 1, 1, 1, 1, 1, 4], [0, 0.979866063, 1.925307591, 2.854324583, 3.773857627, 4.722159233, 5.738844466, 6.829457763, 8], False, 3, [1, 1, 1, 1, 1, 1, 1, 1, 1, 1, 1], False), False)
sketch5.addGeometry(Part.BSplineCurve([V(0.752211, -2.972035, 0), V(0.740053, -2.985299, 0), V(0.715547, -3.012034, 0), V(0.670529, -3.044222, 0), V(0.620636, -3.072048, 0), V(0.564267, -3.093673, 0), V(0.501659, -3.110071, 0), V(0.432564, -3.122179, 0), V(0.356493, -3.128838, 0), V(0.303533, -3.129742, 0), V(0.275946, -3.130214, 0)], [4, 1, 1, 1, 1, 1, 1, 1, 4], [0, 0.831800493, 1.676611046, 2.550120947, 3.474513637, 4.465403317, 5.545747059, 6.721567975, 8], False, 3, [1, 1, 1, 1, 1, 1, 1, 1, 1, 1, 1], False), False)
sketch5.addGeometry(Part.BSplineCurve([V(0.819705, -2.718327, 0), V(0.819446, -2.73494, 0), V(0.818964, -2.765764, 0), V(0.817054, -2.808585, 0), V(0.812145, -2.844175, 0), V(0.805997, -2.87407, 0), V(0.796948, -2.900084, 0), V(0.784875, -2.924565, 0), V(0.770042, -2.948793, 0), V(0.75824, -2.964176, 0), V(0.752211, -2.972035, 0)], [4, 1, 1, 1, 1, 1, 1, 1, 4], [0, 1.482715842, 2.750976389, 3.821049852, 4.685289439, 5.46989593, 6.271009598, 7.11671854, 8], False, 3, [1, 1, 1, 1, 1, 1, 1, 1, 1, 1, 1], False), False)
sketch5.addGeometry(Part.LineSegment(V(0.819705, -2.718327, 0), V(0.819705, -2.642872, 0)), False)
sketch5.addGeometry(Part.LineSegment(V(0.819705, -2.642872, 0), V(-0.265738, -2.642872, 0)), False)
sketch5.addGeometry(Part.LineSegment(V(-0.265738, -2.642872, 0), V(-0.265738, -2.718327, 0)), False)
sketch5.addGeometry(Part.BSplineCurve([V(-0.207589, -2.95646, 0), V(-0.212948, -2.948952, 0), V(-0.2235, -2.934169, 0), V(-0.236155, -2.910604, 0), V(-0.246284, -2.886841, 0), V(-0.254427, -2.862027, 0), V(-0.259404, -2.833846, 0), V(-0.263097, -2.800789, 0), V(-0.265514, -2.761626, 0), V(-0.265659, -2.733444, 0), V(-0.265738, -2.718327, 0)], [4, 1, 1, 1, 1, 1, 1, 1, 4], [0, 0.883959638, 1.740623016, 2.558679227, 3.360100395, 4.239058806, 5.297346294, 6.550193753, 8], False, 3, [1, 1, 1, 1, 1, 1, 1, 1, 1, 1, 1], False), False)
sketch5.addGeometry(Part.BSplineCurve([V(0.275946, -3.130214, 0), V(0.248354, -3.129659, 0), V(0.195253, -3.12859, 0), V(0.11859, -3.12112, 0), V(0.048164, -3.108062, 0), V(-0.016227, -3.089985, 0), V(-0.07432, -3.066188, 0), V(-0.125809, -3.036219, 0), V(-0.171129, -3.000144, 0), V(-0.195468, -2.970982, 0), V(-0.207589, -2.95646, 0)], [4, 1, 1, 1, 1, 1, 1, 1, 4], [0, 1.244029734, 2.394228946, 3.468625209, 4.469754134, 5.404955682, 6.2909402, 7.148914245, 8], False, 3, [1, 1, 1, 1, 1, 1, 1, 1, 1, 1, 1], False), False)
sketch5.addConstraint(Sketcher.Constraint("Block", 0))
sketch5.addConstraint(Sketcher.Constraint("Block", 1))
sketch5.addConstraint(Sketcher.Constraint("Block", 2))
sketch5.addConstraint(Sketcher.Constraint("Block", 3))
sketch5.addConstraint(Sketcher.Constraint("Block", 4))
sketch5.addConstraint(Sketcher.Constraint("Block", 5))
sketch5.addConstraint(Sketcher.Constraint("Block", 6))
sketch5.addConstraint(Sketcher.Constraint("Block", 9))
sketch5.addConstraint(Sketcher.Constraint("Block", 10))
sketch5.addConstraint(Sketcher.Constraint("Block", 11))
sketch5.addConstraint(Sketcher.Constraint("Block", 12))
sketch5.addConstraint(Sketcher.Constraint("Block", 13))
sketch5.addConstraint(Sketcher.Constraint("Block", 14))
sketch5.addConstraint(Sketcher.Constraint("Block", 15))
sketch5.addConstraint(Sketcher.Constraint("Block", 16))
sketch5.addConstraint(Sketcher.Constraint("Block", 19))
sketch5.addConstraint(Sketcher.Constraint("Block", 54))
sketch5.addConstraint(Sketcher.Constraint("Block", 55))
sketch5.addConstraint(Sketcher.Constraint("Block", 56))
sketch5.addConstraint(Sketcher.Constraint("Block", 60))
sketch5.addConstraint(Sketcher.Constraint("Block", 61))
sketch5.addConstraint(Sketcher.Constraint("Block", 62))
sketch5.addConstraint(Sketcher.Constraint("Block", 66))
sketch5.addConstraint(Sketcher.Constraint("Block", 67))
sketch5.addConstraint(Sketcher.Constraint("Coincident", 6, 1, 7, 1))
sketch5.addConstraint(Sketcher.Constraint("Coincident", 7, 2, 8, 1))
sketch5.addConstraint(Sketcher.Constraint("Coincident", 8, 2, 9, 2))
sketch5.addConstraint(Sketcher.Constraint("Coincident", 16, 1, 17, 1))
sketch5.addConstraint(Sketcher.Constraint("Coincident", 17, 2, 18, 1))
sketch5.addConstraint(Sketcher.Constraint("Coincident", 18, 2, 19, 2))
sketch5.addConstraint(Sketcher.Constraint("Coincident", 20, 2, 21, 1))
sketch5.addConstraint(Sketcher.Constraint("Coincident", 21, 2, 22, 1))
sketch5.addConstraint(Sketcher.Constraint("Coincident", 22, 2, 23, 1))
sketch5.addConstraint(Sketcher.Constraint("Coincident", 23, 2, 24, 1))
sketch5.addConstraint(Sketcher.Constraint("Coincident", 24, 2, 25, 1))
sketch5.addConstraint(Sketcher.Constraint("Coincident", 25, 2, 26, 1))
sketch5.addConstraint(Sketcher.Constraint("Coincident", 26, 2, 27, 1))
sketch5.addConstraint(Sketcher.Constraint("Coincident", 27, 2, 28, 1))
sketch5.addConstraint(Sketcher.Constraint("Coincident", 28, 2, 29, 1))
sketch5.addConstraint(Sketcher.Constraint("Coincident", 29, 2, 30, 1))
sketch5.addConstraint(Sketcher.Constraint("Coincident", 30, 2, 31, 1))
sketch5.addConstraint(Sketcher.Constraint("Coincident", 31, 2, 20, 1))
sketch5.addConstraint(Sketcher.Constraint("Coincident", 32, 2, 33, 1))
sketch5.addConstraint(Sketcher.Constraint("Coincident", 33, 2, 34, 1))
sketch5.addConstraint(Sketcher.Constraint("Coincident", 34, 2, 35, 1))
sketch5.addConstraint(Sketcher.Constraint("Coincident", 35, 2, 36, 1))
sketch5.addConstraint(Sketcher.Constraint("Coincident", 36, 2, 37, 1))
sketch5.addConstraint(Sketcher.Constraint("Coincident", 37, 2, 38, 1))
sketch5.addConstraint(Sketcher.Constraint("Coincident", 38, 2, 39, 1))
sketch5.addConstraint(Sketcher.Constraint("Coincident", 39, 2, 40, 1))
sketch5.addConstraint(Sketcher.Constraint("Coincident", 40, 2, 41, 1))
sketch5.addConstraint(Sketcher.Constraint("Coincident", 41, 2, 32, 1))
sketch5.addConstraint(Sketcher.Constraint("Coincident", 42, 2, 43, 1))
sketch5.addConstraint(Sketcher.Constraint("Coincident", 43, 2, 44, 1))
sketch5.addConstraint(Sketcher.Constraint("Coincident", 44, 2, 45, 1))
sketch5.addConstraint(Sketcher.Constraint("Coincident", 45, 2, 46, 1))
sketch5.addConstraint(Sketcher.Constraint("Coincident", 46, 2, 47, 1))
sketch5.addConstraint(Sketcher.Constraint("Coincident", 47, 2, 48, 1))
sketch5.addConstraint(Sketcher.Constraint("Coincident", 48, 2, 49, 1))
sketch5.addConstraint(Sketcher.Constraint("Coincident", 49, 2, 50, 1))
sketch5.addConstraint(Sketcher.Constraint("Coincident", 50, 2, 51, 1))
sketch5.addConstraint(Sketcher.Constraint("Coincident", 51, 2, 52, 1))
sketch5.addConstraint(Sketcher.Constraint("Coincident", 52, 2, 53, 1))
sketch5.addConstraint(Sketcher.Constraint("Coincident", 53, 2, 42, 1))
sketch5.addConstraint(Sketcher.Constraint("Coincident", 56, 1, 57, 1))
sketch5.addConstraint(Sketcher.Constraint("Coincident", 57, 2, 58, 1))
sketch5.addConstraint(Sketcher.Constraint("Coincident", 58, 2, 59, 1))
sketch5.addConstraint(Sketcher.Constraint("Coincident", 59, 2, 60, 2))
sketch5.addConstraint(Sketcher.Constraint("Coincident", 62, 1, 63, 1))
sketch5.addConstraint(Sketcher.Constraint("Coincident", 63, 2, 64, 1))
sketch5.addConstraint(Sketcher.Constraint("Coincident", 64, 2, 65, 1))
sketch5.addConstraint(Sketcher.Constraint("Coincident", 65, 2, 66, 2))
sketch5.addConstraint(Sketcher.Constraint("Vertical", 7))
sketch5.addConstraint(Sketcher.Constraint("Horizontal", 8))
sketch5.addConstraint(Sketcher.Constraint("Vertical", 17))
sketch5.addConstraint(Sketcher.Constraint("Horizontal", 18))
sketch5.addConstraint(Sketcher.Constraint("Vertical", 20))
sketch5.addConstraint(Sketcher.Constraint("Horizontal", 21))
sketch5.addConstraint(Sketcher.Constraint("Vertical", 22))
sketch5.addConstraint(Sketcher.Constraint("Horizontal", 23))
sketch5.addConstraint(Sketcher.Constraint("Vertical", 24))
sketch5.addConstraint(Sketcher.Constraint("Horizontal", 25))
sketch5.addConstraint(Sketcher.Constraint("Vertical", 26))
sketch5.addConstraint(Sketcher.Constraint("Horizontal", 27))
sketch5.addConstraint(Sketcher.Constraint("Vertical", 28))
sketch5.addConstraint(Sketcher.Constraint("Horizontal", 29))
sketch5.addConstraint(Sketcher.Constraint("Vertical", 30))
sketch5.addConstraint(Sketcher.Constraint("Horizontal", 31))
sketch5.addConstraint(Sketcher.Constraint("Vertical", 32))
sketch5.addConstraint(Sketcher.Constraint("Horizontal", 33))
sketch5.addConstraint(Sketcher.Constraint("Vertical", 34))
sketch5.addConstraint(Sketcher.Constraint("Horizontal", 36))
sketch5.addConstraint(Sketcher.Constraint("Vertical", 37))
sketch5.addConstraint(Sketcher.Constraint("Horizontal", 38))
sketch5.addConstraint(Sketcher.Constraint("Vertical", 39))
sketch5.addConstraint(Sketcher.Constraint("Horizontal", 41))
sketch5.addConstraint(Sketcher.Constraint("Vertical", 42))
sketch5.addConstraint(Sketcher.Constraint("Horizontal", 43))
sketch5.addConstraint(Sketcher.Constraint("Vertical", 44))
sketch5.addConstraint(Sketcher.Constraint("Horizontal", 45))
sketch5.addConstraint(Sketcher.Constraint("Vertical", 46))
sketch5.addConstraint(Sketcher.Constraint("Horizontal", 47))
sketch5.addConstraint(Sketcher.Constraint("Vertical", 48))
sketch5.addConstraint(Sketcher.Constraint("Horizontal", 49))
sketch5.addConstraint(Sketcher.Constraint("Vertical", 50))
sketch5.addConstraint(Sketcher.Constraint("Horizontal", 51))
sketch5.addConstraint(Sketcher.Constraint("Vertical", 52))
sketch5.addConstraint(Sketcher.Constraint("Horizontal", 53))
sketch5.addConstraint(Sketcher.Constraint("Vertical", 57))
sketch5.addConstraint(Sketcher.Constraint("Horizontal", 58))
sketch5.addConstraint(Sketcher.Constraint("Vertical", 59))
sketch5.addConstraint(Sketcher.Constraint("Vertical", 63))
sketch5.addConstraint(Sketcher.Constraint("Horizontal", 64))
sketch5.addConstraint(Sketcher.Constraint("Vertical", 65))
sketch5.addConstraint(Sketcher.Constraint("DistanceX", 53, 1, 53, 2, 1.75))
sketch5.addConstraint(Sketcher.Constraint("DistanceY", -1, 1, 40, 2, 0.197002))
sketch5.addConstraint(Sketcher.Constraint("DistanceX", 33, 2, 33, 1, 0.332278))
sketch5.addConstraint(Sketcher.Constraint("DistanceX", 36, 2, 36, 1, 0.332278))
sketch5.addConstraint(Sketcher.Constraint("DistanceX", 38, 1, 38, 2, 0.332278))
sketch5.addConstraint(Sketcher.Constraint("DistanceX", 41, 1, 41, 2, 0.332278))
sketch5.addConstraint(Sketcher.Constraint("DistanceX", 43, 2, 43, 1, 0.332278))
sketch5.addConstraint(Sketcher.Constraint("DistanceX", 47, 2, 47, 1, 0.332278))
sketch5.addConstraint(Sketcher.Constraint("DistanceX", 51, 2, 51, 1, 0.332278))
sketch5.addConstraint(Sketcher.Constraint("DistanceY", 20, 2, 20, 1, 0.708861))
sketch5.addConstraint(Sketcher.Constraint("DistanceY", 26, 1, 26, 2, 0.708861))
sketch5.addConstraint(Sketcher.Constraint("DistanceY", 37, 1, 37, 2, 0.952532))
sketch5.addConstraint(Sketcher.Constraint("DistanceY", 57, 1, 57, 2, 0.42504))
sketch5.addConstraint(Sketcher.Constraint("DistanceY", 65, 2, 50, 2, 0.9571))
sketch5.addConstraint(Sketcher.Constraint("DistanceX", 21, 2, 21, 1, 0.310127))
sketch5.addConstraint(Sketcher.Constraint("DistanceX", 23, 2, 23, 1, 1.129747))
sketch5.addConstraint(Sketcher.Constraint("DistanceX", 25, 2, 25, 1, 0.310127))
sketch5.addConstraint(Sketcher.Constraint("DistanceX", 27, 1, 27, 2, 0.310127))
sketch5.addConstraint(Sketcher.Constraint("DistanceX", 29, 1, 29, 2, 1.129747))
sketch5.addConstraint(Sketcher.Constraint("DistanceX", 45, 2, 45, 1, 0.443038))
sketch5.addConstraint(Sketcher.Constraint("DistanceY", 22, 1, 22, 2, 0.199367))
sketch5.addConstraint(Sketcher.Constraint("DistanceY", 24, 2, 24, 1, 0.199367))
sketch5.addConstraint(Sketcher.Constraint("DistanceY", 28, 2, 28, 1, 0.199367))
sketch5.addConstraint(Sketcher.Constraint("DistanceY", 32, 2, 32, 1, 0.996835))
sketch5.addConstraint(Sketcher.Constraint("DistanceY", 34, 1, 34, 2, 0.626483))
sketch5.addConstraint(Sketcher.Constraint("DistanceY", 39, 2, 39, 1, 0.582526))
sketch5.addConstraint(Sketcher.Constraint("DistanceY", 42, 2, 42, 1, 0.863924))
sketch5.addConstraint(Sketcher.Constraint("DistanceY", 44, 1, 44, 2, 0.553797))
sketch5.addConstraint(Sketcher.Constraint("DistanceY", 46, 2, 46, 1, 0.509494))
sketch5.addConstraint(Sketcher.Constraint("DistanceY", 48, 1, 48, 2, 0.509494))
sketch5.addConstraint(Sketcher.Constraint("DistanceY", 50, 2, 50, 1, 0.553797))
sketch5.addConstraint(Sketcher.Constraint("DistanceY", 63, 1, 63, 2, 0.075455))
sketch5.addConstraint(Sketcher.Constraint("DistanceY", -1, 1, 22, 2, 0.427381))
sketch5.addConstraint(Sketcher.Constraint("DistanceX", 23, 2, -1, 1, 0.287889))
sketch5.addConstraint(Sketcher.Constraint("DistanceY", 35, 2, -1, 1, 0.777682))
sketch5.addConstraint(Sketcher.Constraint("DistanceX", -1, 1, 47, 2, 0.044389))
sketch5.addConstraint(Sketcher.Constraint("DistanceX", 33, 2, 21, 2, 0.022152))
sketch5.addConstraint(Sketcher.Constraint("DistanceX", 24, 2, 35, 2, 0.022152))
pad5 = body.newObject("PartDesign::Pad", "Pad004")
pad5.Profile = sketch5
pad5.Length = 0.01
pad5.Reversed = True

doc.recompute()
